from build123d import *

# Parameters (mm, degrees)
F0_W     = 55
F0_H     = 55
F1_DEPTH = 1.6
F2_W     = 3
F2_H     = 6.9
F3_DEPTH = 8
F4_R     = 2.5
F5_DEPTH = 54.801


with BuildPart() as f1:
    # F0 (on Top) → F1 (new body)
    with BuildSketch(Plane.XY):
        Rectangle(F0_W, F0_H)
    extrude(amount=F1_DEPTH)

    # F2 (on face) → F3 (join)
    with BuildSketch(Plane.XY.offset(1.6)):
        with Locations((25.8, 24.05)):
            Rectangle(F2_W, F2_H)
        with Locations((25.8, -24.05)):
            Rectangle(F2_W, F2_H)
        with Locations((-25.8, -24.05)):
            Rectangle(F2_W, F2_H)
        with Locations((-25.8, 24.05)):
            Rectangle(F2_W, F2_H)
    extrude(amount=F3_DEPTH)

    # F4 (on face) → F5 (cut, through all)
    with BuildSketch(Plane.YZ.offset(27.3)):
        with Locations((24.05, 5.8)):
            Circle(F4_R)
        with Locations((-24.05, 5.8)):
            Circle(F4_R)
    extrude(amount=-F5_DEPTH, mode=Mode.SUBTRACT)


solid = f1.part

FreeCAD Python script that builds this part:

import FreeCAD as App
import Part
import Sketcher

V = App.Vector


def add_polygon(sketch, points):
    """Adds a closed chain of lines whose ends are joined by coincident constraints."""
    first, n = sketch.GeometryCount, len(points)
    for a, b in zip(points, points[1:] + points[:1]):
        sketch.addGeometry(Part.LineSegment(App.Vector(*a, 0), App.Vector(*b, 0)), False)
    for i in range(n):
        sketch.addConstraint(Sketcher.Constraint("Coincident", first + i, 2, first + (i + 1) % n, 1))

doc = App.newDocument("Part")
body = doc.addObject("PartDesign::Body", "Body")

sketch1 = doc.addObject("Sketcher::SketchObject", "Sketch")
body.addObject(sketch1)
sketch1.AttachmentSupport = (doc.XY_Plane, [""])
sketch1.MapMode = "FlatFace"
add_polygon(sketch1, [(-28, 28), (-28, -28), (28, -28), (28, 28)])
sketch1.addConstraint([
    Sketcher.Constraint("Vertical", 0),
    Sketcher.Constraint("Horizontal", 1),
    Sketcher.Constraint("Vertical", 2),
    Sketcher.Constraint("Horizontal", 3),
    Sketcher.Constraint("Symmetric", 0, 2, 2, 2, -1, 1),
    Sketcher.Constraint("Equal", 3, 0),
    Sketcher.Constraint("DistanceX", 1, 1, 1, 2, 55.0),
])
pad1 = doc.addObject("PartDesign::Pad", "Pad")
body.addObject(pad1)
pad1.Profile = sketch1
pad1.Length = 1.6

sketch2 = doc.addObject("Sketcher::SketchObject", "Sketch001")
body.addObject(sketch2)
sketch2.AttachmentSupport = (doc.XY_Plane, [""])
sketch2.MapMode = "FlatFace"
sketch2.AttachmentOffset = App.Placement(V(0, 0, 1.6), App.Rotation())
add_polygon(sketch2, [(24.3, 27.5), (24.3, 20.6), (27.3, 20.6), (27.3, 27.5)])
add_polygon(sketch2, [(24.3, -20.6), (24.3, -27.5), (27.3, -27.5), (27.3, -20.6)])
add_polygon(sketch2, [(-27.3, -20.6), (-27.3, -27.5), (-24.3, -27.5), (-24.3, -20.6)])
add_polygon(sketch2, [(-27.3, 27.5), (-27.3, 20.6), (-24.3, 20.6), (-24.3, 27.5)])
sketch2.addConstraint([
    Sketcher.Constraint("Vertical", 0),
    Sketcher.Constraint("Horizontal", 1),
    Sketcher.Constraint("Vertical", 2),
    Sketcher.Constraint("Horizontal", 3),
    Sketcher.Constraint("Vertical", 4),
    Sketcher.Constraint("Horizontal", 5),
    Sketcher.Constraint("Vertical", 6),
    Sketcher.Constraint("Horizontal", 7),
    Sketcher.Constraint("Vertical", 8),
    Sketcher.Constraint("Horizontal", 9),
    Sketcher.Constraint("Vertical", 10),
    Sketcher.Constraint("Horizontal", 11),
    Sketcher.Constraint("Vertical", 12),
    Sketcher.Constraint("Horizontal", 13),
    Sketcher.Constraint("Vertical", 14),
    Sketcher.Constraint("Horizontal", 15),
    Sketcher.Constraint("Symmetric", 2, 2, 8, 2, -1, 1),
    Sketcher.Constraint("Symmetric", 0, 2, 10, 2, -1, 1),
    Sketcher.Constraint("Symmetric", 6, 2, 12, 2, -1, 1),
    Sketcher.Constraint("Symmetric", 4, 2, 14, 2, -1, 1),
    Sketcher.Constraint("Symmetric", 5, 2, 8, 2, -2),
    Sketcher.Constraint("Symmetric", 7, 2, 10, 2, -2),
    Sketcher.Constraint("DistanceX", 1, 1, 1, 2, 3.0),
    Sketcher.Constraint("DistanceY", 0, 2, 0, 1, 6.9),
    Sketcher.Constraint("DistanceY", 4, 2, 3, 2, 55.0),
    Sketcher.Constraint("DistanceX", -1, 1, 0, 2, 24.3),
])
pad2 = doc.addObject("PartDesign::Pad", "Pad001")
body.addObject(pad2)
pad2.Profile = sketch2
pad2.Length = 8

sketch3 = doc.addObject("Sketcher::SketchObject", "Sketch002")
body.addObject(sketch3)
sketch3.AttachmentSupport = (doc.YZ_Plane, [""])
sketch3.MapMode = "FlatFace"
sketch3.AttachmentOffset = App.Placement(V(0, 0, 27.3), App.Rotation())
sketch3.addGeometry([
    Part.Circle(V(24.1, 5.8, 0), V(0, 0, 1), 2.5),
    Part.Circle(V(-24.1, 5.8, 0), V(0, 0, 1), 2.5),
], False)
sketch3.addConstraint([
    Sketcher.Constraint("Equal", 0, 1),
    Sketcher.Constraint("Symmetric", 0, 3, 1, 3, -2),
    Sketcher.Constraint("Diameter", 0, 5.0),
    Sketcher.Constraint("DistanceY", -1, 1, 0, 3, 5.8),
    Sketcher.Constraint("DistanceX", 1, 3, 0, 3, 48.1),
])
pocket1 = doc.addObject("PartDesign::Pocket", "Pocket")
body.addObject(pocket1)
pocket1.Profile = sketch3
pocket1.Type = "ThroughAll"

doc.recompute()
